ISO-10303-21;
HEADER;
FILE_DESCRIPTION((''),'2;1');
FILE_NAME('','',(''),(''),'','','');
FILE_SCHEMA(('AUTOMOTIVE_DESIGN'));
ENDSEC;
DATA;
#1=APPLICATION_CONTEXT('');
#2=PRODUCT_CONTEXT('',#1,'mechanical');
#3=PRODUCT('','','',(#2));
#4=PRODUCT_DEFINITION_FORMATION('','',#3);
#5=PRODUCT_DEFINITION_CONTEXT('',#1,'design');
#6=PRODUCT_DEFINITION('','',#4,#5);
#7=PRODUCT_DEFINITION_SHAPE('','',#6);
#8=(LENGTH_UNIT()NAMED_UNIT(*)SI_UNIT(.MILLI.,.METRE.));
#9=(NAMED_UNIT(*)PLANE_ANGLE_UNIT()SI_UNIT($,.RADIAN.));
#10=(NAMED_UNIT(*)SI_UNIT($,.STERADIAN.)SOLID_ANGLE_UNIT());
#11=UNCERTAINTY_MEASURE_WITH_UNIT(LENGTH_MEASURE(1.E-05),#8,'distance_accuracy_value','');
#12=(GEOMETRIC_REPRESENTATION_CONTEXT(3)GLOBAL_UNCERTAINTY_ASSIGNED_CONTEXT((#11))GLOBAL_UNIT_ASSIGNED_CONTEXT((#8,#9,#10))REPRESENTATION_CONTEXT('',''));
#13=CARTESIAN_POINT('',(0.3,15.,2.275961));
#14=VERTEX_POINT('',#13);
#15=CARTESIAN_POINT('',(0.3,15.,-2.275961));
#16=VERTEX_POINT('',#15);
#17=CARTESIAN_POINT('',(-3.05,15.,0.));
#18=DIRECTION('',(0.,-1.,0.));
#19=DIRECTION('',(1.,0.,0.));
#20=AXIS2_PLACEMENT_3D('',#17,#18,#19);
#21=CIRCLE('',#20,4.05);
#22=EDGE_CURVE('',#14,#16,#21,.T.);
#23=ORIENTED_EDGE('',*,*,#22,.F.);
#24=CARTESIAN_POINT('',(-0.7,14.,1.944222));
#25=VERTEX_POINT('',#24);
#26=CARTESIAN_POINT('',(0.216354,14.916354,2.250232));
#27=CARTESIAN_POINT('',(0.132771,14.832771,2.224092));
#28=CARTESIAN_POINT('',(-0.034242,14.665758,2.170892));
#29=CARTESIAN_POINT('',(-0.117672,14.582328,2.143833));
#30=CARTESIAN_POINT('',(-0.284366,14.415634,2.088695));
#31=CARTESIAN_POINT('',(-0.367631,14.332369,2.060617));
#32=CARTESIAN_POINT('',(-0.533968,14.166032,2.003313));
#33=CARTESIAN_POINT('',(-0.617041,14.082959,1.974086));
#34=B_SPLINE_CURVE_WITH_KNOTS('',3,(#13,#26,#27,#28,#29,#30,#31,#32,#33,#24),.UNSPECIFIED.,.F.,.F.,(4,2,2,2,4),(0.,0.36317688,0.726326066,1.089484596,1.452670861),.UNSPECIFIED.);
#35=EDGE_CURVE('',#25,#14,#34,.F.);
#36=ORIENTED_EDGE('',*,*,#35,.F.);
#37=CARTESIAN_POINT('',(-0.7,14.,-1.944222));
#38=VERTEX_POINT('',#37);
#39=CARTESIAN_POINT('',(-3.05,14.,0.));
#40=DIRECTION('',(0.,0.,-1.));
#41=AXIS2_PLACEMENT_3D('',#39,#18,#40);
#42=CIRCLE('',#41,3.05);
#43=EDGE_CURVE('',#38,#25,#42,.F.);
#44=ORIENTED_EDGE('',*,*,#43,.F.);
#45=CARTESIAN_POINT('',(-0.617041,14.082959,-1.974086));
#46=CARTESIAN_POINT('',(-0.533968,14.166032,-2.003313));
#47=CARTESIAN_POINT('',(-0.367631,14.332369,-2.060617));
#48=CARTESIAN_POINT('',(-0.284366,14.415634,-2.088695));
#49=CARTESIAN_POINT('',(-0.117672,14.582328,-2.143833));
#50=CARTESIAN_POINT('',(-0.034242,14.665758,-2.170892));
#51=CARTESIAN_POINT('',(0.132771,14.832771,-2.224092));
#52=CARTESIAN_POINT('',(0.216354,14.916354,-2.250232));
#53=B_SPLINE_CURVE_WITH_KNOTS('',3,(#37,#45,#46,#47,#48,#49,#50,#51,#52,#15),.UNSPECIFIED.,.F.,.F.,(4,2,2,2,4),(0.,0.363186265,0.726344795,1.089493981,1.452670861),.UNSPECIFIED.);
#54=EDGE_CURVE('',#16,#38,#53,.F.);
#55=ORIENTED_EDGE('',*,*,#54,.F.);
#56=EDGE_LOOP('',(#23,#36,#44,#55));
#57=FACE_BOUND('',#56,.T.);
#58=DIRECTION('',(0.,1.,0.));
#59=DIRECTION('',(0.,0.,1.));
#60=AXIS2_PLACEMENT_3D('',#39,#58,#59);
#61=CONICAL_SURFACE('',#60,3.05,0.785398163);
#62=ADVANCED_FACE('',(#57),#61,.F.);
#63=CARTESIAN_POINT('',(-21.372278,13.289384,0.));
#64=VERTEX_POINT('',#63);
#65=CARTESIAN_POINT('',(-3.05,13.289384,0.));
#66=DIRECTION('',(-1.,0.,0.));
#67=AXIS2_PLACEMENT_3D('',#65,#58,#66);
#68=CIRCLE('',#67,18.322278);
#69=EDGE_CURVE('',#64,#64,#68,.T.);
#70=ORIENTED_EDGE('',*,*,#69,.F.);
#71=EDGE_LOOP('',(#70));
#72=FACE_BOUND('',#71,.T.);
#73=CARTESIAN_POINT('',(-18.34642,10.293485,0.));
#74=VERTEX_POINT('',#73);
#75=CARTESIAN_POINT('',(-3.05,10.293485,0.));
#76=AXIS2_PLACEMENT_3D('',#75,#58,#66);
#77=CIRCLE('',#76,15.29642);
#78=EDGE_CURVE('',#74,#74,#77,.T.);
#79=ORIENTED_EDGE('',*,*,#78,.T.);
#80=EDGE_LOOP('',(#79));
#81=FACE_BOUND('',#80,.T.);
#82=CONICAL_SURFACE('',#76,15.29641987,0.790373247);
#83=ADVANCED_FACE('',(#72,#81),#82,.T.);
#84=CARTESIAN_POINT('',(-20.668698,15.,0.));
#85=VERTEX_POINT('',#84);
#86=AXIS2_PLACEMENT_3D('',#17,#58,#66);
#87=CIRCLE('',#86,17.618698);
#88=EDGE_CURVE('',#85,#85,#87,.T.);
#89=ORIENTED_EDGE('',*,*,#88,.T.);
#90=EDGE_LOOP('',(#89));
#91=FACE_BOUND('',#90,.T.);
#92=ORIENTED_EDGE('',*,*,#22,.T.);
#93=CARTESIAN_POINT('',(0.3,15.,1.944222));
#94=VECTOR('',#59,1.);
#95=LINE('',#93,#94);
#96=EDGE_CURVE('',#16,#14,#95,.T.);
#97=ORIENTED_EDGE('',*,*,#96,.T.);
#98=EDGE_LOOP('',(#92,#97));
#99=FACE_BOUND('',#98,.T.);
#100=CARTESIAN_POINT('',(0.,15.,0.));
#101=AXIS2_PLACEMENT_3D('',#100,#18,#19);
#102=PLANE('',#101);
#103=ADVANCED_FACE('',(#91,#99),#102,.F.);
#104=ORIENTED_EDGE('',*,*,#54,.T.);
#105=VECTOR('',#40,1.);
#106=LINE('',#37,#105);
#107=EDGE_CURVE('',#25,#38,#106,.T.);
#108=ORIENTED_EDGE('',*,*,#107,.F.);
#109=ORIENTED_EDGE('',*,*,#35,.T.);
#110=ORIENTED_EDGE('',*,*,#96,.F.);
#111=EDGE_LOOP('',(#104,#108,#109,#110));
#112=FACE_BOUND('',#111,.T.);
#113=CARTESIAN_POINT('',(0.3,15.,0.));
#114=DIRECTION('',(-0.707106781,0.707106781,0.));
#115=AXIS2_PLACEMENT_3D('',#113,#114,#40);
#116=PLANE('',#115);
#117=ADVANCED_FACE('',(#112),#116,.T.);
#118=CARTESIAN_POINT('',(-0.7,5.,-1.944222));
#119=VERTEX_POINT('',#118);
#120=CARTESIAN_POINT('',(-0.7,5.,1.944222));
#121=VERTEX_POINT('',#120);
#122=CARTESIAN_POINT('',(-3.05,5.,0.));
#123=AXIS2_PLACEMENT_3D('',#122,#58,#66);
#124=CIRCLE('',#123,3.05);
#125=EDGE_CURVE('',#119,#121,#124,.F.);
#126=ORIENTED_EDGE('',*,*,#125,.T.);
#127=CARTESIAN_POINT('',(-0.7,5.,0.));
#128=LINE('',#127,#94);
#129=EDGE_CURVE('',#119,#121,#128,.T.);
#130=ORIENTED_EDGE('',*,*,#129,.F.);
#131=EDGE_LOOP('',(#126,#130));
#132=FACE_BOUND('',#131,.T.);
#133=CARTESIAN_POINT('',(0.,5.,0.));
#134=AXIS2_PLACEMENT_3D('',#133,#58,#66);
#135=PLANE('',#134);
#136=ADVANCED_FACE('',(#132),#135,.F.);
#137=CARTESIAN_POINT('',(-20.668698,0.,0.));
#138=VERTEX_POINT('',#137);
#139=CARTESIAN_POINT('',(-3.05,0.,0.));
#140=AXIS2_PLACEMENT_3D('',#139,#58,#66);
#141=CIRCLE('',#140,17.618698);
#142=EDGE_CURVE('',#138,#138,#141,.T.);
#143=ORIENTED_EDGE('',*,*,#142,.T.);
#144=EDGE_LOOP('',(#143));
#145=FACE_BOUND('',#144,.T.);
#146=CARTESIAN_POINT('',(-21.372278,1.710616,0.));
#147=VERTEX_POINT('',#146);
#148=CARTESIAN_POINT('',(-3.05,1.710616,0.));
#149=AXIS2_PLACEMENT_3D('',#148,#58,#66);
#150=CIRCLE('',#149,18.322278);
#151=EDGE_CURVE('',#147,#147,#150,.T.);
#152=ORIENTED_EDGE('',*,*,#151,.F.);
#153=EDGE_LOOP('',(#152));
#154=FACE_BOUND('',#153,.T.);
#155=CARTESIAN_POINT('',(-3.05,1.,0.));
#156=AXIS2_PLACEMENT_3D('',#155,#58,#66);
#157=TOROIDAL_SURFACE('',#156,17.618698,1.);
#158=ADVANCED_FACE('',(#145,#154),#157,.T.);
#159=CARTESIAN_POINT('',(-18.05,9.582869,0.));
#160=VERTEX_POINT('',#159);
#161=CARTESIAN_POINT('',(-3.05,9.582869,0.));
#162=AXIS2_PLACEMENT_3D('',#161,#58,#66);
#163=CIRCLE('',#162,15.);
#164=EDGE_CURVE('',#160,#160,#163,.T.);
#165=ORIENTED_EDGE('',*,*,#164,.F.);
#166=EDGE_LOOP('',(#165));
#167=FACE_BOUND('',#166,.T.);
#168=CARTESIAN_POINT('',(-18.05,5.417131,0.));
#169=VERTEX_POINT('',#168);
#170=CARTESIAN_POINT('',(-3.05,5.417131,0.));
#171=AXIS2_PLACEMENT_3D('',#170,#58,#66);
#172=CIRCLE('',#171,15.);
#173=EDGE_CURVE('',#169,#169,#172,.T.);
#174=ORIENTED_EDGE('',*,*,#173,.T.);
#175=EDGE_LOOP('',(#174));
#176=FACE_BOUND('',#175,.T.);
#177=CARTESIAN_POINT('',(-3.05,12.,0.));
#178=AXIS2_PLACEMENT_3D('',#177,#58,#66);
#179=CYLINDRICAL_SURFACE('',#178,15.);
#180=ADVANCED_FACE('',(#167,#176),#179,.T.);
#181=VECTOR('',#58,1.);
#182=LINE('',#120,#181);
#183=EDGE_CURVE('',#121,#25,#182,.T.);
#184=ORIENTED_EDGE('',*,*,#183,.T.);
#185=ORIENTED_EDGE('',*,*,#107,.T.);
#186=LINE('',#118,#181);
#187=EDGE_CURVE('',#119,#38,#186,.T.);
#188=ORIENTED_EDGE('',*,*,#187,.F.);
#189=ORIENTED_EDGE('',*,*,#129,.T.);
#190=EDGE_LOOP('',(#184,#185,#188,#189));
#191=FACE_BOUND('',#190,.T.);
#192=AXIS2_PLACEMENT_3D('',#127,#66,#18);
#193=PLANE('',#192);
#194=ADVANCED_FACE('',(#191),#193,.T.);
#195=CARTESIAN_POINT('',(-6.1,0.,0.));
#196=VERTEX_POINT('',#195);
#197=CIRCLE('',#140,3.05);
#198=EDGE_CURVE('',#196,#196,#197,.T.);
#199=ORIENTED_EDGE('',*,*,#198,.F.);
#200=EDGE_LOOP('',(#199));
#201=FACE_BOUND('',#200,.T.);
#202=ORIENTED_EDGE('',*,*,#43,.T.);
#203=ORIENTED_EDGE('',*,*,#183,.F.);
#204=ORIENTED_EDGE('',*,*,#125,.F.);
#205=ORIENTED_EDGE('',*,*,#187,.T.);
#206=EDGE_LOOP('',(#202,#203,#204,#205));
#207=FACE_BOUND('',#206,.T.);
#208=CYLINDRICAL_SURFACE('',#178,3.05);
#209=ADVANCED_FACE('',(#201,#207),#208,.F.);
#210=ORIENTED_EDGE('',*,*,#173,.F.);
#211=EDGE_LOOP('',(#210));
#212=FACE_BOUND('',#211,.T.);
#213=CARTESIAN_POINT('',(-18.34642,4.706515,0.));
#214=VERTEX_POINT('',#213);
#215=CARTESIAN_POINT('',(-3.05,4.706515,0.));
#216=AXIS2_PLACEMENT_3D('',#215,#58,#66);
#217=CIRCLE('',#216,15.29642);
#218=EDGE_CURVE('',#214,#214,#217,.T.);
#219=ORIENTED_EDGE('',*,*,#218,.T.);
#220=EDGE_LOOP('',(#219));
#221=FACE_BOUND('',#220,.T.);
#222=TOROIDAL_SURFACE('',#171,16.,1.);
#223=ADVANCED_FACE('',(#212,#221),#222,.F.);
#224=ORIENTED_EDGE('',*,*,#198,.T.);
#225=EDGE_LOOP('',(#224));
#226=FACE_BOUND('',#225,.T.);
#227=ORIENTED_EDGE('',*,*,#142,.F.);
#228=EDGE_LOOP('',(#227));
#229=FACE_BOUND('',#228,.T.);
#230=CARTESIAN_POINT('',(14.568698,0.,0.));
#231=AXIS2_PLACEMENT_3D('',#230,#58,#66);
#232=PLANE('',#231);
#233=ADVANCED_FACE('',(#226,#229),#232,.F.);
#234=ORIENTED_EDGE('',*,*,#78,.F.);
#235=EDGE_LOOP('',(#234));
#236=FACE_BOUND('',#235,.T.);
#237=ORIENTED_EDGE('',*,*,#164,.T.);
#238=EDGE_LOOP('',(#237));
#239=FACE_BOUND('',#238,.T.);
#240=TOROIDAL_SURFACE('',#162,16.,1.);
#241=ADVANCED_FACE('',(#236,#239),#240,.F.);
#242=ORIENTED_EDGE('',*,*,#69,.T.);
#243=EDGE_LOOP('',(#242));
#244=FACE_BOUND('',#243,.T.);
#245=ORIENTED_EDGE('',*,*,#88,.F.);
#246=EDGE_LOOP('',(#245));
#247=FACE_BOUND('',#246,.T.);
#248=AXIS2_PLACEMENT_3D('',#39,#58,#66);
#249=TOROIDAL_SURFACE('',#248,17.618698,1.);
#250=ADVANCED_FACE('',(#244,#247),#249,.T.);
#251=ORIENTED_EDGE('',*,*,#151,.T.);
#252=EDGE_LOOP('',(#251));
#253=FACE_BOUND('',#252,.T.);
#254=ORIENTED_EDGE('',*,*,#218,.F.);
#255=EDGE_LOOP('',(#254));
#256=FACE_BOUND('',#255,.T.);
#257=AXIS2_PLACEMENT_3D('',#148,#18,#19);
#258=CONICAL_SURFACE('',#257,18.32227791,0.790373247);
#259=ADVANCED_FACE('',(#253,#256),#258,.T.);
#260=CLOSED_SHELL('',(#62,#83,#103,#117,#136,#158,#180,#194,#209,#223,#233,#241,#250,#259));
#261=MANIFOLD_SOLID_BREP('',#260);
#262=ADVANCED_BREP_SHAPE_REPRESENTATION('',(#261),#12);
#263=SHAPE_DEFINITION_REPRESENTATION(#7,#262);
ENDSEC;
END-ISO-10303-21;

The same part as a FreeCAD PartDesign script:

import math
import FreeCAD as App
import Part
import Sketcher
from FreeCAD import Vector
Q = App.Units.Quantity


def edges_at(feature, points):
    """Names of the edges that pass closest to the given points."""
    edges = feature.Shape.Edges
    near = lambda p: min(range(len(edges)), key=lambda i: edges[i].distToShape(Part.Vertex(*p))[0])
    return sorted({f"Edge{near(p) + 1}" for p in points})

doc = App.newDocument("Part")
body = doc.addObject("PartDesign::Body", "Body")

# Sketch on XY plane
sketch1 = body.newObject("Sketcher::SketchObject", "Sketch")
sketch1.AttachmentSupport = (doc.getObject("XY_Plane"), [""])
sketch1.MapMode = "FlatFace"
sketch1.addGeometry([
    Part.LineSegment(Vector(0, 15, 0), Vector(0, 0, 0)),  # 0
    Part.LineSegment(Vector(0, 0, 0), Vector(14.6, 0, 0)),  # 1
    Part.ArcOfCircle(Part.Circle(Vector(14.6, 1, 0), Vector(0, 0, 1), 1), math.radians(-90), math.radians(45)),  # 2
    Part.LineSegment(Vector(15.3, 1.7, 0), Vector(12.2, 4.7, 0)),  # 3
    Part.ArcOfCircle(Part.Circle(Vector(13, 5.4, 0), Vector(0, 0, 1), 1), math.radians(-180), math.radians(-135)),  # 4
    Part.LineSegment(Vector(11.9, 5.4, 0), Vector(11.9, 9.6, 0)),  # 5
    Part.ArcOfCircle(Part.Circle(Vector(13, 9.6, 0), Vector(0, 0, 1), 1), math.radians(135), math.radians(180)),  # 6
    Part.LineSegment(Vector(12.2, 10.3, 0), Vector(15.3, 13.3, 0)),  # 7
    Part.ArcOfCircle(Part.Circle(Vector(14.6, 14, 0), Vector(0, 0, 1), 1), math.radians(-45), math.radians(90)),  # 8
    Part.LineSegment(Vector(14.6, 15, 0), Vector(0, 15, 0)),  # 9
], False)
sketch1.addGeometry(Part.LineSegment(Vector(-3, 15, 0), Vector(-3, 0, 0)), True)  # axis
sketch1.addConstraint([
    Sketcher.Constraint("Coincident", 0, 2, 1, 1),
    Sketcher.Constraint("Tangent", 1, 2, 2, 1),
    Sketcher.Constraint("Tangent", 2, 2, 3, 1),
    Sketcher.Constraint("Tangent", 3, 2, 4, 2),
    Sketcher.Constraint("Tangent", 4, 1, 5, 1),
    Sketcher.Constraint("Tangent", 5, 2, 6, 2),
    Sketcher.Constraint("Tangent", 6, 1, 7, 1),
    Sketcher.Constraint("Tangent", 7, 2, 8, 1),
    Sketcher.Constraint("Tangent", 8, 2, 9, 1),
    Sketcher.Constraint("Coincident", 9, 2, 0, 1),
    Sketcher.Constraint("Vertical", 0),
    Sketcher.Constraint("Horizontal", 1),
    Sketcher.Constraint("Vertical", 5),
    Sketcher.Constraint("Horizontal", 9),
    Sketcher.Constraint("Vertical", 10),
    Sketcher.Constraint("Coincident", 0, 2, -1, 1),
    Sketcher.Constraint("Equal", 2, 4),
    Sketcher.Constraint("Equal", 4, 6),
    Sketcher.Constraint("Equal", 6, 8),
    Sketcher.Constraint("PointOnObject", 10, 2, -1),
    Sketcher.Constraint("Horizontal", 9, 2, 10, 1),
    Sketcher.Constraint("Vertical", 2, 3, 8, 3),
    Sketcher.Constraint("Vertical", 3, 2, 6, 1),
    Sketcher.Constraint("Radius", 2, Q("1 mm")),
    Sketcher.Constraint("DistanceY", 0, 2, 0, 1, Q("15 mm")),
    Sketcher.Constraint("DistanceX", 10, 1, 5, 2, Q("15 mm")),
    Sketcher.Constraint("DistanceX", -1, 1, 4, 3, Q("12.95 mm")),
    Sketcher.Constraint("DistanceY", 5, 1, 5, 2, Q("4.165738 mm")),
    Sketcher.Constraint("DistanceY", 2, 2, 3, 2, Q("2.995899 mm")),
])
revolution = body.newObject("PartDesign::Revolution", "Revolution")
revolution.Profile = sketch1
revolution.ReferenceAxis = (sketch1, ["Axis0"])
revolution.Angle = 360

# Sketch on XZ plane
sketch2 = body.newObject("Sketcher::SketchObject", "Sketch001")
sketch2.AttachmentSupport = (doc.getObject("XZ_Plane"), [""])
sketch2.MapMode = "FlatFace"
sketch2.AttachmentOffset = App.Placement(Vector(0, 0, -15), App.Rotation())
sketch2.addGeometry([
    Part.ArcOfCircle(Part.Circle(Vector(-3.1, 0, 0), Vector(0, 0, 1), 3.1), math.radians(-40), math.radians(0)),
    Part.LineSegment(Vector(-0.7, -1.9, 0), Vector(-0.7, 1.9, 0)),
    Part.ArcOfCircle(Part.Circle(Vector(-3.1, 0, 0), Vector(0, 0, 1), 3.1), math.radians(0), math.radians(40)),
], False)
sketch2.addConstraint([
    Sketcher.Constraint("Coincident", 0, 1, 1, 1),
    Sketcher.Constraint("Coincident", 1, 2, 2, 2),
    Sketcher.Constraint("Tangent", 2, 1, 0, 2),
    Sketcher.Constraint("Vertical", 1),
    Sketcher.Constraint("Coincident", 2, 1, -1, 1),
    Sketcher.Constraint("Equal", 0, 2),
    Sketcher.Constraint("PointOnObject", 0, 3, -1),
    Sketcher.Constraint("Radius", 0, Q("3.05 mm")),
    Sketcher.Constraint("DistanceX", 0, 1, -1, 1, Q("0.7 mm")),
])
pad1 = body.newObject("PartDesign::Pad", "Pad")
pad1.Profile = sketch2
pad1.Length = 10
doc.recompute()

chamfer = body.newObject("PartDesign::Chamfer", "Chamfer")
chamfer.Base = (pad1, edges_at(pad1, [(-4.083, 15, -2.87), (-0.7, 15, 0)]))
chamfer.Size = 1

doc.recompute()
